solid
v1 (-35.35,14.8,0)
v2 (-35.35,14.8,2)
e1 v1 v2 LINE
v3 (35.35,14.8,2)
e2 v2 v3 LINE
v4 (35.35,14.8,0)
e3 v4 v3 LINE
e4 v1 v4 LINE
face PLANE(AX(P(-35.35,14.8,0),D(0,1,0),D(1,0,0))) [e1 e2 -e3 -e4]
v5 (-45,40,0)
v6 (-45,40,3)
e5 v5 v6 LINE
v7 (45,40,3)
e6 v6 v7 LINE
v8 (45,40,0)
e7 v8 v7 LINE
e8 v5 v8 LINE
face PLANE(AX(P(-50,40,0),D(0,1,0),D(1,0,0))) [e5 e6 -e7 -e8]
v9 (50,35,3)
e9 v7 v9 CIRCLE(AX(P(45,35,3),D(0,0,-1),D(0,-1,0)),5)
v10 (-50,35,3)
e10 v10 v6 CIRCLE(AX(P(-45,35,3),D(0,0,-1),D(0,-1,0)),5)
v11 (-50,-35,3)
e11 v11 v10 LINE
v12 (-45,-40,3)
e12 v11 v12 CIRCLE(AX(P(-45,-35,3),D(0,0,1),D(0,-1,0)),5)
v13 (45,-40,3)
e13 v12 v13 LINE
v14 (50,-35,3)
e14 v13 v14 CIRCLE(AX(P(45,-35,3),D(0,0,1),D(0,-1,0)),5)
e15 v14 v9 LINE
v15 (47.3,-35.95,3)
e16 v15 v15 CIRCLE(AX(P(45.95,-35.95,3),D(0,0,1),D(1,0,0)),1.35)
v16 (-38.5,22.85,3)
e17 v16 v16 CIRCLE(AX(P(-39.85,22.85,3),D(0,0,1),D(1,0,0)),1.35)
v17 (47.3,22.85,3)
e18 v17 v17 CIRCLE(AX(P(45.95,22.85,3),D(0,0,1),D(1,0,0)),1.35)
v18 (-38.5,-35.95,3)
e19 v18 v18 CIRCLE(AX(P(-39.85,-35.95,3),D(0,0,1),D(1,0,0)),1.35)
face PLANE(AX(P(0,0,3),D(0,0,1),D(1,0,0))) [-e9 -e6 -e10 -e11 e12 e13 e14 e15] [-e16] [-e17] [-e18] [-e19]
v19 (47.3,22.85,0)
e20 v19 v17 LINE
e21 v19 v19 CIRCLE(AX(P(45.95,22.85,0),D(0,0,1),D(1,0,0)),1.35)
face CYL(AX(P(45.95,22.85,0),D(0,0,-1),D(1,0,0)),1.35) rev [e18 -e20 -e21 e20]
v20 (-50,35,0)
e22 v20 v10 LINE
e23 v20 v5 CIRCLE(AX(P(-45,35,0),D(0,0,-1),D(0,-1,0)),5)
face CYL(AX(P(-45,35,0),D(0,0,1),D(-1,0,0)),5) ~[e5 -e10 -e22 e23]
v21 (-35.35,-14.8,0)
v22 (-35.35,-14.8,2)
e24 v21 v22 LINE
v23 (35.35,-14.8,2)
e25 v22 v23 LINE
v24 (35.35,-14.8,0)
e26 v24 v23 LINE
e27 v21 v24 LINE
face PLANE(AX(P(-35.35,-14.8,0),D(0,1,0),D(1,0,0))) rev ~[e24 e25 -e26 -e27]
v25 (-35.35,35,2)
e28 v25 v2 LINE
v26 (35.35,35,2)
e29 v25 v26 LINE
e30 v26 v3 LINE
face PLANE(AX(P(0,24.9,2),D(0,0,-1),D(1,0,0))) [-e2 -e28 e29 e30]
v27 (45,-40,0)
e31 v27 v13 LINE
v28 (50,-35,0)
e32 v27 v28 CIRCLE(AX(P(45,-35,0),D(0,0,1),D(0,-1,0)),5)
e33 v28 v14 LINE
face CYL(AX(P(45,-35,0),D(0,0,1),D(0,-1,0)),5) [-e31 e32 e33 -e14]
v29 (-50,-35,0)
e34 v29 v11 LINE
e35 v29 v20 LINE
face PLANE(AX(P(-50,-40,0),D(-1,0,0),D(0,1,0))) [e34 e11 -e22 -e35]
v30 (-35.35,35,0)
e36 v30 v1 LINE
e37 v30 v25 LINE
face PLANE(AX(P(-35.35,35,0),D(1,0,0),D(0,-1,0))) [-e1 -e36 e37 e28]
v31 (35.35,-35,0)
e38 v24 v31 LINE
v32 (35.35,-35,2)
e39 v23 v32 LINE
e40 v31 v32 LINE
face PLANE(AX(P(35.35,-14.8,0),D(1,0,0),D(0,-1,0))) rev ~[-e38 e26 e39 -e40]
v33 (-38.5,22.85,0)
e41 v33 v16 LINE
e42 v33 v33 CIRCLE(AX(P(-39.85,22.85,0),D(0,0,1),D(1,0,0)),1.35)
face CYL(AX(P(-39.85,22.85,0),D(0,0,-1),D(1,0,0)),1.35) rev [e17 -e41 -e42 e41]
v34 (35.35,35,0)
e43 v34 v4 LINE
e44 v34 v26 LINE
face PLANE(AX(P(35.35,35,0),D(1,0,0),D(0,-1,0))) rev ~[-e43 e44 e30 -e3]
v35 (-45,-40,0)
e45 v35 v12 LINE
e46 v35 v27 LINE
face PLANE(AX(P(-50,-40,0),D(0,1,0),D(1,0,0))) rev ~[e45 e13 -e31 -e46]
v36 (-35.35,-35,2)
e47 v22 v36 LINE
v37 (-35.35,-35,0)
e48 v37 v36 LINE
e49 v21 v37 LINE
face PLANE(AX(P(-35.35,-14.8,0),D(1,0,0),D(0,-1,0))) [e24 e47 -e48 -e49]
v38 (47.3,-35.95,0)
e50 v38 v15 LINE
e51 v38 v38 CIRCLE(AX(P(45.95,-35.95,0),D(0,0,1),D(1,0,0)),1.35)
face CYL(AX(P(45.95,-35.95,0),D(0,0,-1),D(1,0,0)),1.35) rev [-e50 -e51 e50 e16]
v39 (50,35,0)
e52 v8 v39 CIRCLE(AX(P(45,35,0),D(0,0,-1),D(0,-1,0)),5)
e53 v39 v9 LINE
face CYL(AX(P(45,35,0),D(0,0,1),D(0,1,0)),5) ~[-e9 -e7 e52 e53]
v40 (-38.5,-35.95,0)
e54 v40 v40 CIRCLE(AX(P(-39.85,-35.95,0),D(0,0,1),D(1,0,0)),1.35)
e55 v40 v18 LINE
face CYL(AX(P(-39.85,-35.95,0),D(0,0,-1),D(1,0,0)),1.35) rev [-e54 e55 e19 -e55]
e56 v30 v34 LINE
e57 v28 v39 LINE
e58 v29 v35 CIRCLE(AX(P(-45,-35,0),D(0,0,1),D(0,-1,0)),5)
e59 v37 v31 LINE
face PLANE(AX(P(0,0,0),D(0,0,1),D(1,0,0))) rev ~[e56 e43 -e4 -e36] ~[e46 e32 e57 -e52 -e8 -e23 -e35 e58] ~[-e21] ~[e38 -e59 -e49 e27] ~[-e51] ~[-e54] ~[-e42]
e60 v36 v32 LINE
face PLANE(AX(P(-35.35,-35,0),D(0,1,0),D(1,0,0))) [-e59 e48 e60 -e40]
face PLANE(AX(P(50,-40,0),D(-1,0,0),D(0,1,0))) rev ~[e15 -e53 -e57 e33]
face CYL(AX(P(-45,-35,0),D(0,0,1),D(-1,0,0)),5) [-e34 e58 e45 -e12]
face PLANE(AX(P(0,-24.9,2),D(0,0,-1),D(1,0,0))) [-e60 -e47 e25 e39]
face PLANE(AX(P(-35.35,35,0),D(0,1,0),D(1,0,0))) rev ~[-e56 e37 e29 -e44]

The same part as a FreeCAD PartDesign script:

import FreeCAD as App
import Part
import Sketcher

V = App.Vector


def edges_at(feature, points):
    """Names of the edges that pass closest to the given points."""
    edges = feature.Shape.Edges
    near = lambda p: min(range(len(edges)), key=lambda i: edges[i].distToShape(Part.Vertex(*p))[0])
    return sorted({f"Edge{near(p) + 1}" for p in points})


def add_polygon(sketch, points):
    """Adds a closed chain of lines whose ends are joined by coincident constraints."""
    first, n = sketch.GeometryCount, len(points)
    for a, b in zip(points, points[1:] + points[:1]):
        sketch.addGeometry(Part.LineSegment(App.Vector(*a, 0), App.Vector(*b, 0)), False)
    for i in range(n):
        sketch.addConstraint(Sketcher.Constraint("Coincident", first + i, 2, first + (i + 1) % n, 1))

doc = App.newDocument("Part")
body = doc.addObject("PartDesign::Body", "Body")

# Sketch on XY plane
sketch1 = body.newObject("Sketcher::SketchObject", "Sketch")
sketch1.AttachmentSupport = (doc.getObject("XY_Plane"), [""])
sketch1.MapMode = "FlatFace"
add_polygon(sketch1, [(-50, 40), (-50, -40), (50, -40), (50, 40)])  # lines 0-3
sketch1.addGeometry(Part.Circle(V(-39.9, -36, 0), V(0, 0, 1), 1.4), False)  # 4
sketch1.addGeometry(Part.Circle(V(46, -36, 0), V(0, 0, 1), 1.4), False)  # 5
sketch1.addGeometry(Part.Circle(V(-39.9, 22.9, 0), V(0, 0, 1), 1.4), False)  # 6
sketch1.addGeometry(Part.Circle(V(46, 22.9, 0), V(0, 0, 1), 1.4), False)  # 7
sketch1.addConstraint([
    Sketcher.Constraint("Vertical", 0),
    Sketcher.Constraint("Horizontal", 1),
    Sketcher.Constraint("Vertical", 2),
    Sketcher.Constraint("Horizontal", 3),
    Sketcher.Constraint("Equal", 4, 5),
    Sketcher.Constraint("Equal", 5, 6),
    Sketcher.Constraint("Equal", 6, 7),
    Sketcher.Constraint("Symmetric", 0, 2, 2, 2, -1, 1),
    Sketcher.Constraint("Horizontal", 4, 3, 5, 3),
    Sketcher.Constraint("Horizontal", 6, 3, 7, 3),
    Sketcher.Constraint("Vertical", 4, 3, 6, 3),
    Sketcher.Constraint("Vertical", 5, 3, 7, 3),
    Sketcher.Constraint("Diameter", 4, 2.7),
    Sketcher.Constraint("DistanceX", 1, 1, 1, 2, 100.0),
    Sketcher.Constraint("DistanceY", 0, 2, 0, 1, 80.0),
    Sketcher.Constraint("DistanceX", 4, 3, 5, 3, 85.8),
    Sketcher.Constraint("DistanceY", 4, 3, 6, 3, 58.8),
    Sketcher.Constraint("DistanceX", 4, 3, -1, 1, 39.85),
    Sketcher.Constraint("DistanceY", 4, 3, -1, 1, 35.95),
])
pad1 = body.newObject("PartDesign::Pad", "Pad")
pad1.Profile = sketch1
pad1.Length = 3

# Sketch on XY plane
sketch2 = body.newObject("Sketcher::SketchObject", "Sketch001")
sketch2.AttachmentSupport = (doc.getObject("XY_Plane"), [""])
sketch2.MapMode = "FlatFace"
add_polygon(sketch2, [(-35, -35), (-35, -15), (35, -15), (35, -35)])  # lines 0-3
add_polygon(sketch2, [(-35, 15), (-35, 35), (35, 35), (35, 15)])  # lines 4-7
sketch2.addConstraint([
    Sketcher.Constraint("Vertical", 0),
    Sketcher.Constraint("Horizontal", 1),
    Sketcher.Constraint("Vertical", 2),
    Sketcher.Constraint("Horizontal", 3),
    Sketcher.Constraint("Vertical", 4),
    Sketcher.Constraint("Horizontal", 5),
    Sketcher.Constraint("Vertical", 6),
    Sketcher.Constraint("Horizontal", 7),
    Sketcher.Constraint("Symmetric", 2, 2, 4, 2, -1, 1),
    Sketcher.Constraint("Symmetric", 0, 2, 6, 2, -1, 1),
    Sketcher.Constraint("Vertical", 3, 2, 4, 2),
    Sketcher.Constraint("DistanceX", 1, 1, 1, 2, 70.7),
    Sketcher.Constraint("DistanceY", 0, 1, 0, 2, 20.2),
    Sketcher.Constraint("DistanceY", 2, 2, -1, 1, 35.0),
])
pocket1 = body.newObject("PartDesign::Pocket", "Pocket")
pocket1.Profile = sketch2
pocket1.Length = 2
pocket1.Reversed = True
doc.recompute()

fillet = body.newObject("PartDesign::Fillet", "Fillet")
fillet.Base = (pocket1, edges_at(pocket1, [
    (-50, 40, 1.5),
    (50, 40, 1.5),
    (-50, -40, 1.5),
    (50, -40, 1.5),
]))
fillet.Radius = 5

doc.recompute()
